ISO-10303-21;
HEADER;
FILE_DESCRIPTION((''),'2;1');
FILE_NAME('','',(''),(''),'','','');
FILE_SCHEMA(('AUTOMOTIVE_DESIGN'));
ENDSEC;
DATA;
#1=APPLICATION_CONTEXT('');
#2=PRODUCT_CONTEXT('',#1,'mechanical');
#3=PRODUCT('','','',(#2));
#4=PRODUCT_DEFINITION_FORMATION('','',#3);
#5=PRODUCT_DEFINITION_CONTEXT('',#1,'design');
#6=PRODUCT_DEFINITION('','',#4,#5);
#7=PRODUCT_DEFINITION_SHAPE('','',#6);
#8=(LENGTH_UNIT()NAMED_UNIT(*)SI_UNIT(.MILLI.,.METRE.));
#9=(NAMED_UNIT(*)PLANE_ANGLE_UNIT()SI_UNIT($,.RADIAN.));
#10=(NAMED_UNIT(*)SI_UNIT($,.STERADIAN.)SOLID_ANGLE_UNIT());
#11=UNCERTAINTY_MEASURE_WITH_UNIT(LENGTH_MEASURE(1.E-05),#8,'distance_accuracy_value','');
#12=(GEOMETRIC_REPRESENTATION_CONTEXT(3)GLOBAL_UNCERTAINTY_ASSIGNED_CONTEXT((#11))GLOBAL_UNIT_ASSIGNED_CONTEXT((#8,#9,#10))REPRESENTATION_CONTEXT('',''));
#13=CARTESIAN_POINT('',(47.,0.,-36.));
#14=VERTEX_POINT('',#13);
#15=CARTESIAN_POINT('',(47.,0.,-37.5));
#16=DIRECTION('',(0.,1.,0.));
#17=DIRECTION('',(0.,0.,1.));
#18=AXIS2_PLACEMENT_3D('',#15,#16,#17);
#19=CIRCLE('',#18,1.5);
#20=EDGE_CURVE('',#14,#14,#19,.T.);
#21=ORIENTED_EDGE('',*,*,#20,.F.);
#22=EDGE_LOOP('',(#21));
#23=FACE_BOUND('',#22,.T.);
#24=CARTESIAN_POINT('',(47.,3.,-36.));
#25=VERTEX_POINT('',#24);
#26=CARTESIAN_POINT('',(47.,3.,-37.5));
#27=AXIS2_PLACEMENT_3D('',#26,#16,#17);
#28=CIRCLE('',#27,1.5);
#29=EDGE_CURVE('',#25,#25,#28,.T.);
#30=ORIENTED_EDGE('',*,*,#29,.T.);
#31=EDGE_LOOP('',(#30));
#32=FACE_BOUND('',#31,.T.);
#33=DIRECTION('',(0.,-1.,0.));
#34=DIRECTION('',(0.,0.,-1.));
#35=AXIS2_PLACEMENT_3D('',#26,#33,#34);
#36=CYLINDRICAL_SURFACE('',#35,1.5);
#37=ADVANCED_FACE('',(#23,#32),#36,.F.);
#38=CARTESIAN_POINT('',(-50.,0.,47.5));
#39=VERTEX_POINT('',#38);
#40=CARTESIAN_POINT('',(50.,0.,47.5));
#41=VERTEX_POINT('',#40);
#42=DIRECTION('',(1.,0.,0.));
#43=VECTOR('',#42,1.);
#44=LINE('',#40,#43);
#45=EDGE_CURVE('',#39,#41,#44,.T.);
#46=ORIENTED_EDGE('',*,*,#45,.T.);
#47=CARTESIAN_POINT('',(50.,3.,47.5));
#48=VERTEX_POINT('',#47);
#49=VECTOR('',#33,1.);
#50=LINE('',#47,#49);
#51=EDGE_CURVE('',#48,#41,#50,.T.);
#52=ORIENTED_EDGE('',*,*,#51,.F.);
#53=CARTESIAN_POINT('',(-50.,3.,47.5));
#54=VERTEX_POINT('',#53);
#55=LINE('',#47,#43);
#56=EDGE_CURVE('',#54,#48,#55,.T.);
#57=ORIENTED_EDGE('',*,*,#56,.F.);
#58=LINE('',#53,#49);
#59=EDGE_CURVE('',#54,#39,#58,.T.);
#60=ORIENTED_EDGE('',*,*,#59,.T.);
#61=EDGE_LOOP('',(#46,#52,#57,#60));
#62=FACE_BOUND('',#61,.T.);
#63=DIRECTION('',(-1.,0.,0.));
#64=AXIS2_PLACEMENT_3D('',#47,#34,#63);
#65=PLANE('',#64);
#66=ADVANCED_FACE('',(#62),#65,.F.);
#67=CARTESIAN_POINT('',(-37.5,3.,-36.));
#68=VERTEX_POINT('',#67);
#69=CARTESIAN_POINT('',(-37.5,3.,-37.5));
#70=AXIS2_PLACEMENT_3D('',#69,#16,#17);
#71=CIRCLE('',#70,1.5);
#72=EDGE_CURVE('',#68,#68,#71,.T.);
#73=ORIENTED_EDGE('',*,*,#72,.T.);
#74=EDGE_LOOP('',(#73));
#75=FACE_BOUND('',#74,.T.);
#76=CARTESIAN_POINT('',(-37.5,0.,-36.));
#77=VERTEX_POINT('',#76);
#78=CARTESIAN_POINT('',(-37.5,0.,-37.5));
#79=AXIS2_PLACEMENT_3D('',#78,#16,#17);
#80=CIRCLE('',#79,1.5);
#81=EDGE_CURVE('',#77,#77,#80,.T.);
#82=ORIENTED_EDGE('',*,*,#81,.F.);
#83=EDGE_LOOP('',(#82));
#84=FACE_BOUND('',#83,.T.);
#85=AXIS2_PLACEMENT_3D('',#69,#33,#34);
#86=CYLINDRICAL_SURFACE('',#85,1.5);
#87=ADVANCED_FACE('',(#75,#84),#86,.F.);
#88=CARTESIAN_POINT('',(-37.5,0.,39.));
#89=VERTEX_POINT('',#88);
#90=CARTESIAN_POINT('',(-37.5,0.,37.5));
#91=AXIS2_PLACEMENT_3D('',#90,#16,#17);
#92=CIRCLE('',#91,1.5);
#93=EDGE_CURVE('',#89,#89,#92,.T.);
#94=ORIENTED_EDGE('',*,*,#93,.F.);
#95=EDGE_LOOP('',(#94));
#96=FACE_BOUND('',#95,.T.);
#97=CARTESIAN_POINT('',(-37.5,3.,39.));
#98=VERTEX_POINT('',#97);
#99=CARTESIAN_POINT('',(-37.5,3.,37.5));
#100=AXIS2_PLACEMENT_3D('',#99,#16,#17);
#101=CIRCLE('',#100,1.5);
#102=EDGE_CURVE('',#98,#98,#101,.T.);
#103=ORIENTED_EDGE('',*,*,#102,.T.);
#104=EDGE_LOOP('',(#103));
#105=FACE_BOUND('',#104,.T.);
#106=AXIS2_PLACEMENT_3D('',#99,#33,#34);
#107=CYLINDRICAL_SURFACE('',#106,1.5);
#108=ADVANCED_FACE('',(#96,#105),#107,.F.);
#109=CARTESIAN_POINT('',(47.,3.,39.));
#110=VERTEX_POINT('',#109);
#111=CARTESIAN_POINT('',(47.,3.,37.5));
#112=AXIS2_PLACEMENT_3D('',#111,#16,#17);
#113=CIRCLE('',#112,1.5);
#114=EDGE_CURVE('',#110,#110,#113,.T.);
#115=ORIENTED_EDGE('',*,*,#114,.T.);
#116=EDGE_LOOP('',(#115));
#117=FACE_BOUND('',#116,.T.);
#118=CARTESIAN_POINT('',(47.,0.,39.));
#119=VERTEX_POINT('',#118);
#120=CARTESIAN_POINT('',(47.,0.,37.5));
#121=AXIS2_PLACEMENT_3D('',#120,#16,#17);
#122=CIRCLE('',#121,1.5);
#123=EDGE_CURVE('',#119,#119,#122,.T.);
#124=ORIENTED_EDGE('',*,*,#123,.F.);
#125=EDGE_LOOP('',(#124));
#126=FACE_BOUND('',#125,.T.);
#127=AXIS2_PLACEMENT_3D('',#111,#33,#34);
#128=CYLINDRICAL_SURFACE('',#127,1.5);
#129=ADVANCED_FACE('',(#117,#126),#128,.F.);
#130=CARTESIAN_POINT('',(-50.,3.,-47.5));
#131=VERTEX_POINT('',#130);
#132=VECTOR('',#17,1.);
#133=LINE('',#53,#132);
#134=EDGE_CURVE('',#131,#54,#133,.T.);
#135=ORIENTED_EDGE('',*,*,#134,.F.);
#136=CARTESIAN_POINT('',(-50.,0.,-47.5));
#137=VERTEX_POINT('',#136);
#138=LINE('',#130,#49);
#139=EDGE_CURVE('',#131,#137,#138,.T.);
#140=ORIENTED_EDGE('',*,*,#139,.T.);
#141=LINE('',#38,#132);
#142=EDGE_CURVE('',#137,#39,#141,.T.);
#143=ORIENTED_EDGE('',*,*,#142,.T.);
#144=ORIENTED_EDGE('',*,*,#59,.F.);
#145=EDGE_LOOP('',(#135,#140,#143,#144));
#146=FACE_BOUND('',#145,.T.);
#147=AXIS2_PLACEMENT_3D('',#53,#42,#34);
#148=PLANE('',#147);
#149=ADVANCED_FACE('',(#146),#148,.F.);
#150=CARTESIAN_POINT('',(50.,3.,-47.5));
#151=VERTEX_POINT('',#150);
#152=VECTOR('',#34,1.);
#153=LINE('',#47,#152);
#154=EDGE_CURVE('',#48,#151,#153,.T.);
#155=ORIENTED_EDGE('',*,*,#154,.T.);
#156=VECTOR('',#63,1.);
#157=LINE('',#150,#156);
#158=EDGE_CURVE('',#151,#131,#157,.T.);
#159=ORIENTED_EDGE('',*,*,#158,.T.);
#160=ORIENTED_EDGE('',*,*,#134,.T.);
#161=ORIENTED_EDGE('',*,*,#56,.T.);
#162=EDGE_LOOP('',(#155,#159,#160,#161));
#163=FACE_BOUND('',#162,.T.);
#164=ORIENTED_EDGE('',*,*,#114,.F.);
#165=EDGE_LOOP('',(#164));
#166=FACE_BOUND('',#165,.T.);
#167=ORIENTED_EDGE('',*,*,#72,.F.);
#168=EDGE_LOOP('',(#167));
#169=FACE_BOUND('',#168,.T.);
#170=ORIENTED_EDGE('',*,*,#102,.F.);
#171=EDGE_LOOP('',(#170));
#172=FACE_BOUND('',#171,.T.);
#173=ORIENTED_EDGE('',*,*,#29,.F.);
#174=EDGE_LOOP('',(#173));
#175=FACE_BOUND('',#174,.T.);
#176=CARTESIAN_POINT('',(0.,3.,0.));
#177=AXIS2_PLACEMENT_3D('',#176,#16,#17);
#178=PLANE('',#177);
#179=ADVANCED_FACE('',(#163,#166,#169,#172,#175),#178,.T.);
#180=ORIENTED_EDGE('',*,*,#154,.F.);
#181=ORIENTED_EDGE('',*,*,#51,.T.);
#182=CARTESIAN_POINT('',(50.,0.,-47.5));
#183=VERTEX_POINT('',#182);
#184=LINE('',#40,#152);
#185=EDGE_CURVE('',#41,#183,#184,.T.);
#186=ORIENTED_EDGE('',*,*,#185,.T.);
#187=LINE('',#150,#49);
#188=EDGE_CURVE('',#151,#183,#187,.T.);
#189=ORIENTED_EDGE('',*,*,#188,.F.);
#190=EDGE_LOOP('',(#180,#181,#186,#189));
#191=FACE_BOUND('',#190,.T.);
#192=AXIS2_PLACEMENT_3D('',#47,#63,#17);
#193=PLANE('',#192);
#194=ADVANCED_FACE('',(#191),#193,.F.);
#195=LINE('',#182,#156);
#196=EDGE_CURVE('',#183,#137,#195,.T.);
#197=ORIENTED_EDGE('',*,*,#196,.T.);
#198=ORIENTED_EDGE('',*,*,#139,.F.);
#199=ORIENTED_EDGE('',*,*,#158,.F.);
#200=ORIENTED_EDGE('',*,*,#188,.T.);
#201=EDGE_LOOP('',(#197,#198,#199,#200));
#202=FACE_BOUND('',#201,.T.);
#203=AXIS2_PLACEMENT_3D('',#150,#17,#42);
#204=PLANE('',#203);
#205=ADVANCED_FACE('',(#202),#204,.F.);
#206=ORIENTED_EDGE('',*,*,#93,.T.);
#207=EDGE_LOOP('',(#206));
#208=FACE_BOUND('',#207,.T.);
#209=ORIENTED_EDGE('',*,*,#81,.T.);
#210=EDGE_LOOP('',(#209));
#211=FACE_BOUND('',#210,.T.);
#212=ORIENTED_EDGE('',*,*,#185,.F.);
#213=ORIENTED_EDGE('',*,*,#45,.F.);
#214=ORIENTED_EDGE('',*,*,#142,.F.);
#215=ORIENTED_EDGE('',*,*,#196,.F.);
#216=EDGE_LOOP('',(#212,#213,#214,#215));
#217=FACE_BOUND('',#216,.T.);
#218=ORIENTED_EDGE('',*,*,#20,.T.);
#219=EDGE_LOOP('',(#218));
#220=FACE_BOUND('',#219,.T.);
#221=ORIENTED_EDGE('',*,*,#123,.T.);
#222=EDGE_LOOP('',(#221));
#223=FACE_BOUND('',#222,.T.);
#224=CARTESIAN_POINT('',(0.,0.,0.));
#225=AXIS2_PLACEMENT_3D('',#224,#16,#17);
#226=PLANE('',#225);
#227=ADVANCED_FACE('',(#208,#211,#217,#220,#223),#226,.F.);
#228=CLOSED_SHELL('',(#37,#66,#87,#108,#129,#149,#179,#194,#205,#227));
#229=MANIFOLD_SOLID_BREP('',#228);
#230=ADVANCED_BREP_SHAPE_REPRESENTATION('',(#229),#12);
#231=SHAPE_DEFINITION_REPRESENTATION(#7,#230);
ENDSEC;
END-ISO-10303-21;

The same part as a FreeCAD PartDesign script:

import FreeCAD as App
import Part
import Sketcher

V = App.Vector
Q = App.Units.Quantity

doc = App.newDocument("Part")
body = doc.addObject("PartDesign::Body", "Body")

sketch1 = body.newObject("Sketcher::SketchObject", "Sketch")
sketch1.AttachmentSupport = (doc.getObject("XZ_Plane"), [""])
sketch1.MapMode = "FlatFace"
sketch1.addGeometry(Part.LineSegment(V(-50, -47.5, 0), V(-50, 47.5, 0)), False)
sketch1.addGeometry(Part.LineSegment(V(-50, 47.5, 0), V(50, 47.5, 0)), False)
sketch1.addGeometry(Part.LineSegment(V(50, 47.5, 0), V(50, -47.5, 0)), False)
sketch1.addGeometry(Part.LineSegment(V(50, -47.5, 0), V(-50, -47.5, 0)), False)
sketch1.addGeometry(Part.Circle(V(-37.5, 37.5, 0), V(0, 0, 1), 1.5), False)
sketch1.addGeometry(Part.Circle(V(47, 37.5, 0), V(0, 0, 1), 1.5), False)
sketch1.addGeometry(Part.Circle(V(-37.5, -37.5, 0), V(0, 0, 1), 1.5), False)
sketch1.addGeometry(Part.Circle(V(47, -37.5, 0), V(0, 0, 1), 1.5), False)
sketch1.addConstraint(Sketcher.Constraint("Coincident", 0, 2, 1, 1))
sketch1.addConstraint(Sketcher.Constraint("Coincident", 1, 2, 2, 1))
sketch1.addConstraint(Sketcher.Constraint("Coincident", 2, 2, 3, 1))
sketch1.addConstraint(Sketcher.Constraint("Coincident", 3, 2, 0, 1))
sketch1.addConstraint(Sketcher.Constraint("Vertical", 0))
sketch1.addConstraint(Sketcher.Constraint("Horizontal", 1))
sketch1.addConstraint(Sketcher.Constraint("Vertical", 2))
sketch1.addConstraint(Sketcher.Constraint("Horizontal", 3))
sketch1.addConstraint(Sketcher.Constraint("Equal", 4, 5))
sketch1.addConstraint(Sketcher.Constraint("Equal", 5, 6))
sketch1.addConstraint(Sketcher.Constraint("Equal", 6, 7))
sketch1.addConstraint(Sketcher.Constraint("Symmetric", 0, 2, 2, 2, -1, 1))
sketch1.addConstraint(Sketcher.Constraint("Symmetric", 4, 3, 6, 3, -1))
sketch1.addConstraint(Sketcher.Constraint("Symmetric", 5, 3, 7, 3, -1))
sketch1.addConstraint(Sketcher.Constraint("Horizontal", 4, 3, 5, 3))
sketch1.addConstraint(Sketcher.Constraint("Diameter", 4, Q("3 mm")))
sketch1.addConstraint(Sketcher.Constraint("DistanceX", 1, 1, 1, 2, Q("100 mm")))
sketch1.addConstraint(Sketcher.Constraint("DistanceY", 0, 1, 0, 2, Q("95 mm")))
sketch1.addConstraint(Sketcher.Constraint("DistanceX", -1, 1, 5, 3, Q("47 mm")))
sketch1.addConstraint(Sketcher.Constraint("DistanceY", 6, 3, 4, 3, Q("75 mm")))
sketch1.addConstraint(Sketcher.Constraint("DistanceX", 4, 3, -1, 1, Q("37.5 mm")))
pad1 = body.newObject("PartDesign::Pad", "Pad")
pad1.Profile = sketch1
pad1.Length = 3
pad1.Reversed = True

doc.recompute()
